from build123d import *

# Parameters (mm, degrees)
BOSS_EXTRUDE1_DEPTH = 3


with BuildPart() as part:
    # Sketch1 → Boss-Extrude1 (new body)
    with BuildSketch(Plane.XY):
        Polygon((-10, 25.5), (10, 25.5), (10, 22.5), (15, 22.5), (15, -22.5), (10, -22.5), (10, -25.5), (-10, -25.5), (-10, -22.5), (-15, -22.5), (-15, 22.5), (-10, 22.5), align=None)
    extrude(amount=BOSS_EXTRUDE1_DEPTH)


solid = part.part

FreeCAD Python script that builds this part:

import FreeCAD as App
import Part
import Sketcher
from FreeCAD import Vector
Q = App.Units.Quantity

doc = App.newDocument("Part")
params = doc.addObject("Spreadsheet::Sheet", "Params")
for row, (alias, value) in enumerate([
    ("sketch1_width", "20 mm"),
    ("sketch1_width2", "5 mm"),
    ("sketch1_height", "3 mm"),
    ("sketch1_height2", "45 mm"),
    ("pad1_length", "3 mm"),
], start=1):
    params.set(f"A{row}", alias)
    params.set(f"B{row}", "=" + value)
    params.setAlias(f"B{row}", alias)

body = doc.addObject("PartDesign::Body", "Body")

# Sketch on XY plane
sketch1 = body.newObject("Sketcher::SketchObject", "Sketch")
sketch1.AttachmentSupport = (doc.getObject("XY_Plane"), [""])
sketch1.MapMode = "FlatFace"
sketch1.addGeometry([
    Part.LineSegment(Vector(10, 25.5, 0), Vector(-10, 25.5, 0)),  # 0
    Part.LineSegment(Vector(-10, 25.5, 0), Vector(-10, 22.5, 0)),  # 1
    Part.LineSegment(Vector(-10, 22.5, 0), Vector(-15, 22.5, 0)),  # 2
    Part.LineSegment(Vector(-15, 22.5, 0), Vector(-15, -22.5, 0)),  # 3
    Part.LineSegment(Vector(-15, -22.5, 0), Vector(-10, -22.5, 0)),  # 4
    Part.LineSegment(Vector(-10, -22.5, 0), Vector(-10, -25.5, 0)),  # 5
    Part.LineSegment(Vector(-10, -25.5, 0), Vector(10, -25.5, 0)),  # 6
    Part.LineSegment(Vector(10, -25.5, 0), Vector(10, -22.5, 0)),  # 7
    Part.LineSegment(Vector(10, -22.5, 0), Vector(15, -22.5, 0)),  # 8
    Part.LineSegment(Vector(15, -22.5, 0), Vector(15, 22.5, 0)),  # 9
    Part.LineSegment(Vector(15, 22.5, 0), Vector(10, 22.5, 0)),  # 10
    Part.LineSegment(Vector(10, 22.5, 0), Vector(10, 25.5, 0)),  # 11
], False)
sketch1.addConstraint([
    Sketcher.Constraint("Coincident", 0, 2, 1, 1),
    Sketcher.Constraint("Coincident", 1, 2, 2, 1),
    Sketcher.Constraint("Coincident", 2, 2, 3, 1),
    Sketcher.Constraint("Coincident", 3, 2, 4, 1),
    Sketcher.Constraint("Coincident", 4, 2, 5, 1),
    Sketcher.Constraint("Coincident", 5, 2, 6, 1),
    Sketcher.Constraint("Coincident", 6, 2, 7, 1),
    Sketcher.Constraint("Coincident", 7, 2, 8, 1),
    Sketcher.Constraint("Coincident", 8, 2, 9, 1),
    Sketcher.Constraint("Coincident", 9, 2, 10, 1),
    Sketcher.Constraint("Coincident", 10, 2, 11, 1),
    Sketcher.Constraint("Coincident", 11, 2, 0, 1),
    Sketcher.Constraint("Horizontal", 0),
    Sketcher.Constraint("Vertical", 1),
    Sketcher.Constraint("Horizontal", 2),
    Sketcher.Constraint("Vertical", 3),
    Sketcher.Constraint("Horizontal", 4),
    Sketcher.Constraint("Vertical", 5),
    Sketcher.Constraint("Horizontal", 6),
    Sketcher.Constraint("Vertical", 7),
    Sketcher.Constraint("Horizontal", 8),
    Sketcher.Constraint("Vertical", 9),
    Sketcher.Constraint("Horizontal", 10),
    Sketcher.Constraint("Vertical", 11),
    Sketcher.Constraint("Symmetric", 0, 2, 6, 2, -1, 1),
    Sketcher.Constraint("Symmetric", 2, 2, 8, 2, -1, 1),
    Sketcher.Constraint("Symmetric", 4, 2, 10, 2, -1, 1),
    Sketcher.Constraint("Symmetric", 4, 2, 7, 2, -2),
    Sketcher.Constraint("DistanceX", 0, 2, 0, 1, Q("20 mm")),
    Sketcher.Constraint("DistanceX", 2, 2, 2, 1, Q("5 mm")),
    Sketcher.Constraint("DistanceY", 1, 2, 1, 1, Q("3 mm")),
    Sketcher.Constraint("DistanceY", 3, 2, 3, 1, Q("45 mm")),
])
sketch1.setExpression("Constraints[28]", "Params.sketch1_width")
sketch1.setExpression("Constraints[29]", "Params.sketch1_width2")
sketch1.setExpression("Constraints[30]", "Params.sketch1_height")
sketch1.setExpression("Constraints[31]", "Params.sketch1_height2")
pad1 = body.newObject("PartDesign::Pad", "Pad")
pad1.Profile = sketch1
pad1.setExpression("Length", "Params.pad1_length")

doc.recompute()
